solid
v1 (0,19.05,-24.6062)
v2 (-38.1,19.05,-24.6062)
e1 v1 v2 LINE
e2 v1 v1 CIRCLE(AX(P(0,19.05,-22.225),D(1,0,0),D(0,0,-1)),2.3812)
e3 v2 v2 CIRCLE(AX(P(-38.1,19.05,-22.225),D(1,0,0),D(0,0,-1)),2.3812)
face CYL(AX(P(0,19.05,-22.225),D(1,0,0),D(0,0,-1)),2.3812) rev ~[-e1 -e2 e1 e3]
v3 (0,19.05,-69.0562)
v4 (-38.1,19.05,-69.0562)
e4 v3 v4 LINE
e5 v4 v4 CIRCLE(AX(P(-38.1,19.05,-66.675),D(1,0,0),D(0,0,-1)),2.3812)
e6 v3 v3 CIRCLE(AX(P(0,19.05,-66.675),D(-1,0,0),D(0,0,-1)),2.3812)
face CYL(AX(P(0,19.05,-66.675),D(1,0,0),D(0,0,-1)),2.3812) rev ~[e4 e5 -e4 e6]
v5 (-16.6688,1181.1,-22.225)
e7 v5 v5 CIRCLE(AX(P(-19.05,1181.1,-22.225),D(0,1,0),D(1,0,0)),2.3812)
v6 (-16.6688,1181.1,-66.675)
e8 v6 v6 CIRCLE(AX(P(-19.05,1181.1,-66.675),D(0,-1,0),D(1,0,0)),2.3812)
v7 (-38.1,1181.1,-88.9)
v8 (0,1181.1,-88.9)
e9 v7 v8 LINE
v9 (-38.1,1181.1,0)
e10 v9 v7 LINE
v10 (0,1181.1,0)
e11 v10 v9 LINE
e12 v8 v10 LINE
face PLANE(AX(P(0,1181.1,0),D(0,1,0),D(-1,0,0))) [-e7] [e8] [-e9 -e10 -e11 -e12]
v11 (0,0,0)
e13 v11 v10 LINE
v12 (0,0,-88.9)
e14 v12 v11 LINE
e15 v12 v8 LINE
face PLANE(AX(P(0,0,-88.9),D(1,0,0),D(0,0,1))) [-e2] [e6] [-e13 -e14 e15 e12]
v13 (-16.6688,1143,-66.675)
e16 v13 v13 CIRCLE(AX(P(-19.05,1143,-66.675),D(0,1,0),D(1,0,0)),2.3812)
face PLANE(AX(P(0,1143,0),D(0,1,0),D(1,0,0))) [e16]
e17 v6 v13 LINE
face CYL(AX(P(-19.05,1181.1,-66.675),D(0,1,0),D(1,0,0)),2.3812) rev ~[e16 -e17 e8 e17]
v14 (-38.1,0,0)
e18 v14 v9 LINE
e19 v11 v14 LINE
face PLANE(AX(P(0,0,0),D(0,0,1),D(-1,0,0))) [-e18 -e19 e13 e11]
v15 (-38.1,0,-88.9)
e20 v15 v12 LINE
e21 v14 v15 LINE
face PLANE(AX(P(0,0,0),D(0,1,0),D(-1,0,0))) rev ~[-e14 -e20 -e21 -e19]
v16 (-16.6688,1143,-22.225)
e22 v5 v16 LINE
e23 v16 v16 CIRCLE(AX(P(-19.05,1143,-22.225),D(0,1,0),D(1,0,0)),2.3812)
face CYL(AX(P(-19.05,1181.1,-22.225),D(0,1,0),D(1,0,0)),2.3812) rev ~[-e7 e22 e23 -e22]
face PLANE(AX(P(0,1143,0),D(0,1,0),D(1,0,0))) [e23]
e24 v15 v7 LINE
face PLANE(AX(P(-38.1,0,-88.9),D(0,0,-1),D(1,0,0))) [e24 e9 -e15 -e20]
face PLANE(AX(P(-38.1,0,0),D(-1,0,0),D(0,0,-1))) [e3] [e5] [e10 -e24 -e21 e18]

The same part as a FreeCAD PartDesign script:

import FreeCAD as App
import Part
import Sketcher
Q = App.Units.Quantity


def add_polygon(sketch, points):
    """Adds a closed chain of lines whose ends are joined by coincident constraints."""
    first, n = sketch.GeometryCount, len(points)
    for a, b in zip(points, points[1:] + points[:1]):
        sketch.addGeometry(Part.LineSegment(App.Vector(*a, 0), App.Vector(*b, 0)), False)
    for i in range(n):
        sketch.addConstraint(Sketcher.Constraint("Coincident", first + i, 2, first + (i + 1) % n, 1))

doc = App.newDocument("Part")
body = doc.addObject("PartDesign::Body", "Body")

sketch1 = body.newObject("Sketcher::SketchObject", "Sketch")
sketch1.AttachmentSupport = (doc.getObject("XZ_Plane"), [""])
sketch1.MapMode = "FlatFace"
add_polygon(sketch1, [(-38, 0), (0, 0), (0, -89), (-38, -89)])
sketch1.addConstraint([
    Sketcher.Constraint("Horizontal", 0),
    Sketcher.Constraint("Vertical", 1),
    Sketcher.Constraint("Horizontal", 2),
    Sketcher.Constraint("Vertical", 3),
    Sketcher.Constraint("Coincident", 0, 2, -1, 1),
    Sketcher.Constraint("DistanceX", 0, 1, 0, 2, Q("1.5 in")),
    Sketcher.Constraint("DistanceY", 1, 2, 1, 1, Q("3.5 in")),
])
pad1 = body.newObject("PartDesign::Pad", "Pad")
pad1.Profile = sketch1
pad1.Length = Q("46.5 in")
pad1.Reversed = True

sketch2 = body.newObject("Sketcher::SketchObject", "Sketch001")
sketch2.AttachmentSupport = (doc.getObject("XZ_Plane"), [""])
sketch2.MapMode = "FlatFace"
sketch2.AttachmentOffset = App.Placement(App.Vector(0, 0, -46.5 * 25.4), App.Rotation())
sketch2.addGeometry([
    Part.Circle(App.Vector(-19.1, -66.7, 0), App.Vector(0, 0, 1), 2.4),
    Part.Circle(App.Vector(-19.1, -22.2, 0), App.Vector(0, 0, 1), 2.4),
], False)
sketch2.addConstraint([
    Sketcher.Constraint("Equal", 0, 1),
    Sketcher.Constraint("Vertical", 0, 3, 1, 3),
    Sketcher.Constraint("Diameter", 0, Q("0.1875 in")),
    Sketcher.Constraint("DistanceX", 0, 3, -1, 1, Q("0.75 in")),
    Sketcher.Constraint("DistanceY", 0, 3, 1, 3, Q("1.75 in")),
    Sketcher.Constraint("DistanceY", 0, 3, -1, 1, Q("2.625 in")),
])
pocket1 = body.newObject("PartDesign::Pocket", "Pocket")
pocket1.Profile = sketch2
pocket1.Length = Q("1.5 in")
pocket1.Reversed = True

sketch3 = body.newObject("Sketcher::SketchObject", "Sketch002")
sketch3.AttachmentSupport = (doc.getObject("YZ_Plane"), [""])
sketch3.MapMode = "FlatFace"
sketch3.addGeometry([
    Part.Circle(App.Vector(19.1, -66.7, 0), App.Vector(0, 0, 1), 2.4),
    Part.Circle(App.Vector(19.1, -22.2, 0), App.Vector(0, 0, 1), 2.4),
], False)
sketch3.addConstraint([
    Sketcher.Constraint("Equal", 0, 1),
    Sketcher.Constraint("Vertical", 0, 3, 1, 3),
    Sketcher.Constraint("Diameter", 0, Q("0.1875 in")),
    Sketcher.Constraint("DistanceX", -1, 1, 0, 3, Q("0.75 in")),
    Sketcher.Constraint("DistanceY", 0, 3, 1, 3, Q("1.75 in")),
    Sketcher.Constraint("DistanceY", 0, 3, -1, 1, Q("2.625 in")),
])
pocket2 = body.newObject("PartDesign::Pocket", "Pocket001")
pocket2.Profile = sketch3
pocket2.Length = Q("1.5 in")

doc.recompute()
